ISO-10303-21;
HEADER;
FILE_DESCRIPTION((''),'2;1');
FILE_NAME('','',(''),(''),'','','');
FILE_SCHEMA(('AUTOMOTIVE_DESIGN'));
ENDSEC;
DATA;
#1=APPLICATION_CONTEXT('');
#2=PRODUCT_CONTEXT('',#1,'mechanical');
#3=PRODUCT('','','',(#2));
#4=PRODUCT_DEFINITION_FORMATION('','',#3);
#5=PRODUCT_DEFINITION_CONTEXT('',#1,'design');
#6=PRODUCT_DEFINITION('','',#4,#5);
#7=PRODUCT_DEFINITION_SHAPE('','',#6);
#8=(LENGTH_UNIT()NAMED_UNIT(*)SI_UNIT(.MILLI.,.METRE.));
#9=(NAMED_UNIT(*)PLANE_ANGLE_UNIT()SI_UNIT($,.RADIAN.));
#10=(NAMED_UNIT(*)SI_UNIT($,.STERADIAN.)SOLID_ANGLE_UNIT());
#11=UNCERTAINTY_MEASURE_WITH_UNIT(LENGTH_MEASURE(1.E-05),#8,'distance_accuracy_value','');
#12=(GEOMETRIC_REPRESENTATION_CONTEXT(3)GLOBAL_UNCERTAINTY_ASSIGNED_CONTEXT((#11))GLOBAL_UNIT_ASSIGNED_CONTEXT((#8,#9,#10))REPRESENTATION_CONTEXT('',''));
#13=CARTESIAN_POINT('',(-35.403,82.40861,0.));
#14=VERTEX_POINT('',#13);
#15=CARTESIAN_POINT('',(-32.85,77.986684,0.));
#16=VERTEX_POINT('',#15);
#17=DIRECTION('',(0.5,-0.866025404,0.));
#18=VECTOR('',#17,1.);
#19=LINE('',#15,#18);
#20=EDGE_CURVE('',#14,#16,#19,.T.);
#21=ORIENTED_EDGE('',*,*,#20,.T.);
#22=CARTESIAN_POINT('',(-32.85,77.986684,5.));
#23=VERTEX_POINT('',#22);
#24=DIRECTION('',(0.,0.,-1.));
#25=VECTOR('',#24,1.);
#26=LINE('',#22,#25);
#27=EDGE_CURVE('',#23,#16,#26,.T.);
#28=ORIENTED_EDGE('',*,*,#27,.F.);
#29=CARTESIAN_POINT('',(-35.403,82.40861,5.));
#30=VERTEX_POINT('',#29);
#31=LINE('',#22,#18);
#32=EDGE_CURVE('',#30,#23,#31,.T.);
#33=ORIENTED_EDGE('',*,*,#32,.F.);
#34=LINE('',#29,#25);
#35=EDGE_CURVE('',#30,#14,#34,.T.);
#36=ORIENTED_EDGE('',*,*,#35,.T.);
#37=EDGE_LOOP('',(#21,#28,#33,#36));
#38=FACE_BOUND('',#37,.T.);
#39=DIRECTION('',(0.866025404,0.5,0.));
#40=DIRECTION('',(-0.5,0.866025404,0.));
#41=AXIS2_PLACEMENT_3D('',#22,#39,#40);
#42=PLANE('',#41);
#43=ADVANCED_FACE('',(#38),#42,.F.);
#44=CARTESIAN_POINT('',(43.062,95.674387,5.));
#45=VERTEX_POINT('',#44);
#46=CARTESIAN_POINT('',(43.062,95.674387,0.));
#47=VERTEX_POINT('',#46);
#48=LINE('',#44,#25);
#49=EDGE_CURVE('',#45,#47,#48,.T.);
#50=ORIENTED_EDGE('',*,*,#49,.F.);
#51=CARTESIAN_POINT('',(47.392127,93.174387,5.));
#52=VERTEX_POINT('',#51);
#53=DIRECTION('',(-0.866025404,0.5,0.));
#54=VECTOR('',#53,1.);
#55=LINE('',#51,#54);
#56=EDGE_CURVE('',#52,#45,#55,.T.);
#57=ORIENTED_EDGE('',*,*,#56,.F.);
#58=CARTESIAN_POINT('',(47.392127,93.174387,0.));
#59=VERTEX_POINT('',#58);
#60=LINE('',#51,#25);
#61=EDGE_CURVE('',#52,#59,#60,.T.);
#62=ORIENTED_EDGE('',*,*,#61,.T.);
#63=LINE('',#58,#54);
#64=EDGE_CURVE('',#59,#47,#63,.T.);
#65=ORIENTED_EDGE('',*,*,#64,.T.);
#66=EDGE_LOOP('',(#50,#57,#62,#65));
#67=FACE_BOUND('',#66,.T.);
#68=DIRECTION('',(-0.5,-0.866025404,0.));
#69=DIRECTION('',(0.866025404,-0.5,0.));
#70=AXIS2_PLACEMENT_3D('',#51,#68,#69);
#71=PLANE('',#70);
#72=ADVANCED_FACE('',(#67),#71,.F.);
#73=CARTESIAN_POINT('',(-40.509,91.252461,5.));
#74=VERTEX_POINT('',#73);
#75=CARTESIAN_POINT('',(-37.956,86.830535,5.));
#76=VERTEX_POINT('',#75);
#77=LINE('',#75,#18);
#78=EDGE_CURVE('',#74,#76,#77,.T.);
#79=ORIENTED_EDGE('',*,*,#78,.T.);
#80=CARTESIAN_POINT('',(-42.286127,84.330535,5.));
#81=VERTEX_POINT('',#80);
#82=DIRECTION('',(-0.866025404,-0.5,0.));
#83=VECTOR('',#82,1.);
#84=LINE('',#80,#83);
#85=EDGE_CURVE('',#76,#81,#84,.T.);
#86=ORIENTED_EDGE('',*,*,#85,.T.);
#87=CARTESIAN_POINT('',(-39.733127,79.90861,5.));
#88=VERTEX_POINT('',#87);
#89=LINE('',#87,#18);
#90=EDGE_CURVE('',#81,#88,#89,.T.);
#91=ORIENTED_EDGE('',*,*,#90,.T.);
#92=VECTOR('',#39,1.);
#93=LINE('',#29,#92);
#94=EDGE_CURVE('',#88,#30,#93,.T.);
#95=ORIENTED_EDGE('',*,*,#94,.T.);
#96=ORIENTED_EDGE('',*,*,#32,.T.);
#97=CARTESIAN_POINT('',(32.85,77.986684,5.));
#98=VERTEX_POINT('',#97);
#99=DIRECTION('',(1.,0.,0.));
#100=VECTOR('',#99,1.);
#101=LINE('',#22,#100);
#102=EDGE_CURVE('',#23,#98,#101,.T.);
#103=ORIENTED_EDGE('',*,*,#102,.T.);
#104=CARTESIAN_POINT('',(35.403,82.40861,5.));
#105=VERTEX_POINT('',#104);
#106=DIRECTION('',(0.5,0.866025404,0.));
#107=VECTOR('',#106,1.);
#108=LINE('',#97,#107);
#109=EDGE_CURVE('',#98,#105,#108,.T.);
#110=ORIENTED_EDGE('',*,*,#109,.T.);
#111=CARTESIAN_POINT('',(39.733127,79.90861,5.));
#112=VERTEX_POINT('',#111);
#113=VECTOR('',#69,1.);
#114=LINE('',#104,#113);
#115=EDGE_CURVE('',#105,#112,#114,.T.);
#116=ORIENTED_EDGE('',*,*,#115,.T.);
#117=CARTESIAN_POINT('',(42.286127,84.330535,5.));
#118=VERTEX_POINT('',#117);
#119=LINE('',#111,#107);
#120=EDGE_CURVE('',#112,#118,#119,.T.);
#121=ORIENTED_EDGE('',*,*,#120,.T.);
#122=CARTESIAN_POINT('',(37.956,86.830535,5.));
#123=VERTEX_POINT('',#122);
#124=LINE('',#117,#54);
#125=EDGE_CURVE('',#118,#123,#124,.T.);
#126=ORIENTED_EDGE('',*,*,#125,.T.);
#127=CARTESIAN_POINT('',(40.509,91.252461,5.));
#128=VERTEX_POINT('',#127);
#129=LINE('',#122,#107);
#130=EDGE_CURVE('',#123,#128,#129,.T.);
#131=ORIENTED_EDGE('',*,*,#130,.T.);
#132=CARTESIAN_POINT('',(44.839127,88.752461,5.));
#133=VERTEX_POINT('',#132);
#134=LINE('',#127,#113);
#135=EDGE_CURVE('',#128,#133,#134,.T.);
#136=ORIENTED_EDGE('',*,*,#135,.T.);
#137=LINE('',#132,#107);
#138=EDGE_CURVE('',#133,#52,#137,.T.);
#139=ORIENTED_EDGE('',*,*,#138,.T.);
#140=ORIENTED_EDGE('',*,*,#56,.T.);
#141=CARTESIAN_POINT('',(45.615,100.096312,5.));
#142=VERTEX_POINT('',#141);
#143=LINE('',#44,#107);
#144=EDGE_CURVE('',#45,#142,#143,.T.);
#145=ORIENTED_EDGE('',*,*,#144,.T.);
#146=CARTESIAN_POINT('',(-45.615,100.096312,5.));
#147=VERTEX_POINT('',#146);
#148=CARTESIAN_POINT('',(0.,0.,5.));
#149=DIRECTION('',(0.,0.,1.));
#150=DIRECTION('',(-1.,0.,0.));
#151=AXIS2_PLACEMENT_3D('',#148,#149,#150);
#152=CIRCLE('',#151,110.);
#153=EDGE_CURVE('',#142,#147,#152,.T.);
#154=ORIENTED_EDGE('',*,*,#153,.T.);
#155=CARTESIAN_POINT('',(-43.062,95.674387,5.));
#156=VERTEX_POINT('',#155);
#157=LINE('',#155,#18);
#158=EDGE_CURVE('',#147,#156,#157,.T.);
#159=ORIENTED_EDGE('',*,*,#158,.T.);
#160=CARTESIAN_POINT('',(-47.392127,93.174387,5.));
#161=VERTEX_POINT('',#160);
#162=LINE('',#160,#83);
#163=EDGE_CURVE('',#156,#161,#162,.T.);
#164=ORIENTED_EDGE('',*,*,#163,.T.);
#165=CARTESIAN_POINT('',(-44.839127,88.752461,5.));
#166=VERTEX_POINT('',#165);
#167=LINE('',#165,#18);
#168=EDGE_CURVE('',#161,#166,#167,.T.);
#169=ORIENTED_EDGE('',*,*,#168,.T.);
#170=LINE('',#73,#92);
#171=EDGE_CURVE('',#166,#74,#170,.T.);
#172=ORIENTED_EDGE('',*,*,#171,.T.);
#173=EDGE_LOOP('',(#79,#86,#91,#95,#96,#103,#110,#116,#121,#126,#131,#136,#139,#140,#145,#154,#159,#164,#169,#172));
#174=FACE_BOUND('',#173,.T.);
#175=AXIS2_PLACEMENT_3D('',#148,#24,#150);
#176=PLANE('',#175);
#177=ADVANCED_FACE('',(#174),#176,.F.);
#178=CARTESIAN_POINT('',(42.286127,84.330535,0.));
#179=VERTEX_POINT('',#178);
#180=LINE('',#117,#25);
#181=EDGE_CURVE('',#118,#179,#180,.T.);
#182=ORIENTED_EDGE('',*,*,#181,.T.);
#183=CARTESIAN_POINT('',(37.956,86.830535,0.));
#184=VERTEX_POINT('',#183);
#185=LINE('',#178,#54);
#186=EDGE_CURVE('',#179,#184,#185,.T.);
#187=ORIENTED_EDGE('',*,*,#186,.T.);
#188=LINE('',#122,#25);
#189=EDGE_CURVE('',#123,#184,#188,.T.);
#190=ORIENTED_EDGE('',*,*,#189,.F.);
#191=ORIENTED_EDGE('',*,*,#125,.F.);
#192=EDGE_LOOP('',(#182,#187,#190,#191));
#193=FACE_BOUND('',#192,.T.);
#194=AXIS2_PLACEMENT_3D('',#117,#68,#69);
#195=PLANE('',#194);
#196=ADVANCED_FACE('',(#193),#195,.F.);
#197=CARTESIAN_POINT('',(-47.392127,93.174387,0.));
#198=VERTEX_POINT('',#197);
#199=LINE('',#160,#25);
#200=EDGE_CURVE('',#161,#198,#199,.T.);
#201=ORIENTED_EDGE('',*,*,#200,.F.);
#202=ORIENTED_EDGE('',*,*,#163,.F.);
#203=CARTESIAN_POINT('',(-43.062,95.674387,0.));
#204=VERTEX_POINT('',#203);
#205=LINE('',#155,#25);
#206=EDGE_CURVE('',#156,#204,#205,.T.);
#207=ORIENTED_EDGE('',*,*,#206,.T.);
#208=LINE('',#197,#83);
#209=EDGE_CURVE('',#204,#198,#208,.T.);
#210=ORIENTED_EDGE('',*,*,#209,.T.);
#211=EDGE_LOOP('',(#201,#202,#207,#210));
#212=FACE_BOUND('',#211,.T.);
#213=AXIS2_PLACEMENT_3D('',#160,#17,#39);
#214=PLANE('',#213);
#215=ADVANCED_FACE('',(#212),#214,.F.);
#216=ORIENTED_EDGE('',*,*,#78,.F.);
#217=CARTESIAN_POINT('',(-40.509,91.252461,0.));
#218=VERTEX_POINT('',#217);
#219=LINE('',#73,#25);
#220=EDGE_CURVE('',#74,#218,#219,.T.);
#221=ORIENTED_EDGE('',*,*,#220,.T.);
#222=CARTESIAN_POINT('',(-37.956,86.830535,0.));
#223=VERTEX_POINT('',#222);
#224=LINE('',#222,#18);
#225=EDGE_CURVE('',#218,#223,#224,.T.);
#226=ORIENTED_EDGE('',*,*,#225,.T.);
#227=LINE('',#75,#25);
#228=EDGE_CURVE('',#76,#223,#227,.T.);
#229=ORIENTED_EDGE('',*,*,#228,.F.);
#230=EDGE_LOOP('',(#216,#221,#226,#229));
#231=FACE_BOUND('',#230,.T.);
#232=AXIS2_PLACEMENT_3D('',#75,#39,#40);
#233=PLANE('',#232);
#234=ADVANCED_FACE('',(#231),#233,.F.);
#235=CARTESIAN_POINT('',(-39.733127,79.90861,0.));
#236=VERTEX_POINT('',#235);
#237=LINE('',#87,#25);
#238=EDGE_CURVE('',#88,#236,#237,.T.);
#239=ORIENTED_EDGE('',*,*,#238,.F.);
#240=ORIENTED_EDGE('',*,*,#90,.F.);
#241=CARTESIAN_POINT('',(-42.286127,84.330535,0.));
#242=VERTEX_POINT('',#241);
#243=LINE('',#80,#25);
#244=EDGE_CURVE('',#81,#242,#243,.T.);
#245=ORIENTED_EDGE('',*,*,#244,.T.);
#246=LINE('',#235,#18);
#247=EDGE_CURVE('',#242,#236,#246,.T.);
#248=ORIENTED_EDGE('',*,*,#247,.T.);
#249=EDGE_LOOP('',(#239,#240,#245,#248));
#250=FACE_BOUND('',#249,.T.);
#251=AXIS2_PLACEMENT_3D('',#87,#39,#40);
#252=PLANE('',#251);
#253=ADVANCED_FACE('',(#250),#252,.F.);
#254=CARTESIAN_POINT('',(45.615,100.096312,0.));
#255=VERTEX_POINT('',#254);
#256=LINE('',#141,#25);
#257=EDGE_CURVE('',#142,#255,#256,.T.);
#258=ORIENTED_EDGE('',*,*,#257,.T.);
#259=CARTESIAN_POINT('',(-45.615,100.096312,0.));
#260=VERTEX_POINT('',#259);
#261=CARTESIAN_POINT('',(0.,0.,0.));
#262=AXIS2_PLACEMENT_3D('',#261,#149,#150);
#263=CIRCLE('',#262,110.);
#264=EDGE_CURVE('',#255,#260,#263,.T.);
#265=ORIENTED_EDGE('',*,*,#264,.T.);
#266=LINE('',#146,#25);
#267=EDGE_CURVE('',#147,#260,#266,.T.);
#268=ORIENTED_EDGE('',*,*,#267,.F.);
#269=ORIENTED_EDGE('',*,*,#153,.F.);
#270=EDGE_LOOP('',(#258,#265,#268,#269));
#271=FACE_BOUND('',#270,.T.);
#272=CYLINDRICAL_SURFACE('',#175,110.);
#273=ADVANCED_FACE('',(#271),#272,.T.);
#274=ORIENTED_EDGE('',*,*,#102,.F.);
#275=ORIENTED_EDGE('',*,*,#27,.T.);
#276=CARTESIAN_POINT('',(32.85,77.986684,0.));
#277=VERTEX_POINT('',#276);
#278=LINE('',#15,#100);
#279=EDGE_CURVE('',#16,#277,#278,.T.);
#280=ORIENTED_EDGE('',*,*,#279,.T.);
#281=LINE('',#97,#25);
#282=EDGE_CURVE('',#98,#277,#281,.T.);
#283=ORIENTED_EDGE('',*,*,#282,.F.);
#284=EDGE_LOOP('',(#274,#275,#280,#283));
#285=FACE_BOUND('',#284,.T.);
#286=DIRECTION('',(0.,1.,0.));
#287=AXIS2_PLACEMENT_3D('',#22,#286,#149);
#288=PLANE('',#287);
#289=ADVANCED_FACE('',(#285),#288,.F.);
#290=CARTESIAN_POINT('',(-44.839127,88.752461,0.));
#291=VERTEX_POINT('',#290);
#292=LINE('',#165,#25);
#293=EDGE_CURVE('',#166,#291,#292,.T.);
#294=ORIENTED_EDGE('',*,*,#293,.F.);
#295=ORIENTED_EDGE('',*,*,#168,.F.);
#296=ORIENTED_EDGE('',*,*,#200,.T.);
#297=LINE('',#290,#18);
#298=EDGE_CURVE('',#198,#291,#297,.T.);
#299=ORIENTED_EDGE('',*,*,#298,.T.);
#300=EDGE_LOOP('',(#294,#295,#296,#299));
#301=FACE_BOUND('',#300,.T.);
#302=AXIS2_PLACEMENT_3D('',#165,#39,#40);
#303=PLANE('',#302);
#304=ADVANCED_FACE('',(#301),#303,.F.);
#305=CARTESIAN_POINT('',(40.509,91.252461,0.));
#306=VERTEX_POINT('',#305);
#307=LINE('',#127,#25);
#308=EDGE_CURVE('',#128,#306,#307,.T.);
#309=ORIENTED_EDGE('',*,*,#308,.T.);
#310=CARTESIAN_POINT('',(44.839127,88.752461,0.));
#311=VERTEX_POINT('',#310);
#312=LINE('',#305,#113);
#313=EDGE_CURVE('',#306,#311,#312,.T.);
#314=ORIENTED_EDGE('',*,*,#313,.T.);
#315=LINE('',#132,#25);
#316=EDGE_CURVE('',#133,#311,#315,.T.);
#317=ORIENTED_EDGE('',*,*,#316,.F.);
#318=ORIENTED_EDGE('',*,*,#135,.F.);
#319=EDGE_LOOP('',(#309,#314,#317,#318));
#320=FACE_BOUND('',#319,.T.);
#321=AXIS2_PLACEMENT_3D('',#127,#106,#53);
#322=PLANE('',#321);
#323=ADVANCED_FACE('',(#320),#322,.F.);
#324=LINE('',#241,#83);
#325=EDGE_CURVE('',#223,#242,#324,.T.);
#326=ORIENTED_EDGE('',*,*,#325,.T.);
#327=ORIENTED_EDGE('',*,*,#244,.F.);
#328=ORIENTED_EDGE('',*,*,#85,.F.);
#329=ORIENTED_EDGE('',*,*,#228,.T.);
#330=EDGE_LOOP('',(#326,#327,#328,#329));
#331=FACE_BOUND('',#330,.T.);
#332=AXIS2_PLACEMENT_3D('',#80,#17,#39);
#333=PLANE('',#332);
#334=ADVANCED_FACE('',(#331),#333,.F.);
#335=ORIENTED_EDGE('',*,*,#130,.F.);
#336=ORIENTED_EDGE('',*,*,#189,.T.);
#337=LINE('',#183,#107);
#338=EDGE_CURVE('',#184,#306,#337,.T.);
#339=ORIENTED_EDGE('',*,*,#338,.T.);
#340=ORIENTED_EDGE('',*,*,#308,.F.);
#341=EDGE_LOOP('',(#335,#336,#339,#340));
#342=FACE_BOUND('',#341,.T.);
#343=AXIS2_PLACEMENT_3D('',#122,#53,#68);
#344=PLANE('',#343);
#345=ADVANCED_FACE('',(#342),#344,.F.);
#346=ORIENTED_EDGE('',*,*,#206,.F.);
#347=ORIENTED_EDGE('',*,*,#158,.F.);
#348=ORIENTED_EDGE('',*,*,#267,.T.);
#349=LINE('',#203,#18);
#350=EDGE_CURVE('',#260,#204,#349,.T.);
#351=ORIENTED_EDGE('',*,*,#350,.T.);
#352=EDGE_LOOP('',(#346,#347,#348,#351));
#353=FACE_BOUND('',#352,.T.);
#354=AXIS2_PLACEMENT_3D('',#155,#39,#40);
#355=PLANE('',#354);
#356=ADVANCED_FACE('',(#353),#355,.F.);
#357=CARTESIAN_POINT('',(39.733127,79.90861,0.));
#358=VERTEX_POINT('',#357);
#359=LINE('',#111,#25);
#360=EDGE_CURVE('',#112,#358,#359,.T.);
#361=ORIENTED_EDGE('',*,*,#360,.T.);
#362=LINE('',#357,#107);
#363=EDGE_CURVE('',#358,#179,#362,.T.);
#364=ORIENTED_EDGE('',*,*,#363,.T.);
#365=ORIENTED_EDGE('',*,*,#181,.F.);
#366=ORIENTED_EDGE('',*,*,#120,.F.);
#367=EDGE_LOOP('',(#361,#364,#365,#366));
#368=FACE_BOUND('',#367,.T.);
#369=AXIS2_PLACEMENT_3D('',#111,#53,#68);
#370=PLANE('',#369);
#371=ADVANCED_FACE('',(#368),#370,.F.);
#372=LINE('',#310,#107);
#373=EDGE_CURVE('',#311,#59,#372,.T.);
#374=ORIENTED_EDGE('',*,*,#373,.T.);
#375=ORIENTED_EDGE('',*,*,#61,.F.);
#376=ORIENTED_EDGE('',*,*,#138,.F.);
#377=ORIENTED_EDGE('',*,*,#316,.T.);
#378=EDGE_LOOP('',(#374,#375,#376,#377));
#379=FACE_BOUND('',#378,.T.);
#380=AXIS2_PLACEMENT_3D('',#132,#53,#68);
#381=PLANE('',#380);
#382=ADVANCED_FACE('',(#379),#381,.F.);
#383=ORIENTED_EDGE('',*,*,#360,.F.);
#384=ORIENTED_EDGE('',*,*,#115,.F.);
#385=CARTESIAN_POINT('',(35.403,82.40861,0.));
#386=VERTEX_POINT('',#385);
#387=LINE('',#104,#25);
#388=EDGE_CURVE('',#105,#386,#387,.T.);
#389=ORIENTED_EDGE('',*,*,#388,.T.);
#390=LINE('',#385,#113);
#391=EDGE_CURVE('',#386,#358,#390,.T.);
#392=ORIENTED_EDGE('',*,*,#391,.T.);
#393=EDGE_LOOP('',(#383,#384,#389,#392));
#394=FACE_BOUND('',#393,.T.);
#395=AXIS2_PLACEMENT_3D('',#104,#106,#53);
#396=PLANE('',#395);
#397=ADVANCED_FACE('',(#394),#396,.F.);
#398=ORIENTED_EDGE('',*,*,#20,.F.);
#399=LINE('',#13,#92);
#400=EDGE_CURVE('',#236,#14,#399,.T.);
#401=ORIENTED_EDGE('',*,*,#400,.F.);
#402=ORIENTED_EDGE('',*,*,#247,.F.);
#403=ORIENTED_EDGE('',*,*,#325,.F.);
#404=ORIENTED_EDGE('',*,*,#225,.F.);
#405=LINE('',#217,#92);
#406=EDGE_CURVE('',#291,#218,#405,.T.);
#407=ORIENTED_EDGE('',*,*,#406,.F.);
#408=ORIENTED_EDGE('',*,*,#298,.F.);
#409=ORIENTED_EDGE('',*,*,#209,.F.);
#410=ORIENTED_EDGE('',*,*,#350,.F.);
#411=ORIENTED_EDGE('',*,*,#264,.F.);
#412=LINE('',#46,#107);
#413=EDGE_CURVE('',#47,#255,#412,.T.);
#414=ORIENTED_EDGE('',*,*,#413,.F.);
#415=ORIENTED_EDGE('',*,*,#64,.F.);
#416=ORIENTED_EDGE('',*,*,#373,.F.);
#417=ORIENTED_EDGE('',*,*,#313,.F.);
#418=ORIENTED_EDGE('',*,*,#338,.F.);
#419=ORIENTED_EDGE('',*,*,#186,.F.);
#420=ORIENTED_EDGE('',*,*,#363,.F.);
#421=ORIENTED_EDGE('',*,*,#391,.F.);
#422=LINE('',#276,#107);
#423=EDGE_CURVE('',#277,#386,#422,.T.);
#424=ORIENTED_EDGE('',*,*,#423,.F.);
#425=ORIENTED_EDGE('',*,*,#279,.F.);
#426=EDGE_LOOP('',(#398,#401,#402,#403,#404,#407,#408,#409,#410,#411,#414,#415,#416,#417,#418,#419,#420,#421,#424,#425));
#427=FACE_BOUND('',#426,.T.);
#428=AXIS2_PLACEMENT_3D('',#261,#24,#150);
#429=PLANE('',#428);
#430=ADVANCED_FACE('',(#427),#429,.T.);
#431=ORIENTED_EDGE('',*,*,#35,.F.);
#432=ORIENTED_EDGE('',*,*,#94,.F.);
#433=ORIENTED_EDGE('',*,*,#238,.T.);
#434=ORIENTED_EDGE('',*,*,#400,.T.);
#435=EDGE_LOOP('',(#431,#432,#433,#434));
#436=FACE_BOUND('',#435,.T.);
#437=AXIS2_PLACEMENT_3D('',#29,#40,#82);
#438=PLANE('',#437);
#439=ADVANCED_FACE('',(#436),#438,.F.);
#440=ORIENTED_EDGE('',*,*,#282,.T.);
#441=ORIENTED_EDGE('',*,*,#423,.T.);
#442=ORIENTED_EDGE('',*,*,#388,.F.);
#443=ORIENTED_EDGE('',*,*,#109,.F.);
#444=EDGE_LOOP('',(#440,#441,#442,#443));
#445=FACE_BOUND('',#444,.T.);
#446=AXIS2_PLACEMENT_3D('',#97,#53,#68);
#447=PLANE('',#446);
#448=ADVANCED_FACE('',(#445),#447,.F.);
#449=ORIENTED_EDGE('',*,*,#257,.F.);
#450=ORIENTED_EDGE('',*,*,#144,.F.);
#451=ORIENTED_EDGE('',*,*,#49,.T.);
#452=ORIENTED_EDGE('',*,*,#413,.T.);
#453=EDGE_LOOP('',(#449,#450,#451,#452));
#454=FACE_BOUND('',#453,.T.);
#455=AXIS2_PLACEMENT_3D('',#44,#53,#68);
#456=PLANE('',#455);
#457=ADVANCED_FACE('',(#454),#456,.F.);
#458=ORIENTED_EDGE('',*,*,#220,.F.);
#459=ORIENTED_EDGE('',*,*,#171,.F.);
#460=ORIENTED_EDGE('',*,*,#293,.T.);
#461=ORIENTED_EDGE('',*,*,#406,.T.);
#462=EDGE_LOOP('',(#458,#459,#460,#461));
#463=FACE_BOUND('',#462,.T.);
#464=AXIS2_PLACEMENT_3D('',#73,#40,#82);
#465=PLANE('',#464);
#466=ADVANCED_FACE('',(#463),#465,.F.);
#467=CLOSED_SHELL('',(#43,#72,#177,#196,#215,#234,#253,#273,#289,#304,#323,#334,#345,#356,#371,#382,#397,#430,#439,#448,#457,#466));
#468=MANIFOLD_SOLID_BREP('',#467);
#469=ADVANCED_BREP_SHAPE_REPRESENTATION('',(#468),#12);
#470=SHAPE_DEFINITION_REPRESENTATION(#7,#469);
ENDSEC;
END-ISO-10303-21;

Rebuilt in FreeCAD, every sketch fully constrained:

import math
import FreeCAD as App
import Part
import Sketcher
from FreeCAD import Vector
Q = App.Units.Quantity

doc = App.newDocument("Part")
params = doc.addObject("Spreadsheet::Sheet", "Params")
for row, (alias, value) in enumerate([
    ("sketch1_radius", "110 mm"),
    ("sketch1_length", "5 mm"),
    ("sketch1_width", "65.7 mm"),
    ("pad1_length", "5 mm"),
], start=1):
    params.set(f"A{row}", alias)
    params.set(f"B{row}", "=" + value)
    params.setAlias(f"B{row}", alias)

body = doc.addObject("PartDesign::Body", "Body")

# Sketch on XY plane
sketch1 = doc.addObject("Sketcher::SketchObject", "Sketch")
body.addObject(sketch1)
sketch1.AttachmentSupport = (doc.XY_Plane, [""])
sketch1.MapMode = "FlatFace"
sketch1.addGeometry([
    Part.LineSegment(Vector(-32.85, 77.986684, 0), Vector(32.85, 77.986684, 0)),  # 0
    Part.LineSegment(Vector(32.85, 77.986684, 0), Vector(35.403, 82.40861, 0)),  # 1
    Part.LineSegment(Vector(35.403, 82.40861, 0), Vector(39.733127, 79.90861, 0)),  # 2
    Part.LineSegment(Vector(39.733127, 79.90861, 0), Vector(42.286127, 84.330535, 0)),  # 3
    Part.LineSegment(Vector(42.286127, 84.330535, 0), Vector(37.956, 86.830535, 0)),  # 4
    Part.LineSegment(Vector(37.956, 86.830535, 0), Vector(40.509, 91.252461, 0)),  # 5
    Part.LineSegment(Vector(40.509, 91.252461, 0), Vector(44.839127, 88.752461, 0)),  # 6
    Part.LineSegment(Vector(44.839127, 88.752461, 0), Vector(47.392127, 93.174387, 0)),  # 7
    Part.LineSegment(Vector(47.392127, 93.174387, 0), Vector(43.062, 95.674387, 0)),  # 8
    Part.LineSegment(Vector(43.062, 95.674387, 0), Vector(45.615, 100.096312, 0)),  # 9
    Part.ArcOfCircle(Part.Circle(Vector(0, 0, 0), Vector(0, 0, 1), 110), math.radians(65.500719), math.radians(114.499281)),  # 10
    Part.LineSegment(Vector(-45.615, 100.096312, 0), Vector(-43.062, 95.674387, 0)),  # 11
    Part.LineSegment(Vector(-43.062, 95.674387, 0), Vector(-47.392127, 93.174387, 0)),  # 12
    Part.LineSegment(Vector(-47.392127, 93.174387, 0), Vector(-44.839127, 88.752461, 0)),  # 13
    Part.LineSegment(Vector(-44.839127, 88.752461, 0), Vector(-40.509, 91.252461, 0)),  # 14
    Part.LineSegment(Vector(-40.509, 91.252461, 0), Vector(-37.956, 86.830535, 0)),  # 15
    Part.LineSegment(Vector(-37.956, 86.830535, 0), Vector(-42.286127, 84.330535, 0)),  # 16
    Part.LineSegment(Vector(-42.286127, 84.330535, 0), Vector(-39.733127, 79.90861, 0)),  # 17
    Part.LineSegment(Vector(-39.733127, 79.90861, 0), Vector(-35.403, 82.40861, 0)),  # 18
    Part.LineSegment(Vector(-35.403, 82.40861, 0), Vector(-32.85, 77.986684, 0)),  # 19
], False)
sketch1.addConstraint([
    Sketcher.Constraint("Coincident", 0, 2, 1, 1),
    Sketcher.Constraint("Coincident", 1, 2, 2, 1),
    Sketcher.Constraint("Coincident", 2, 2, 3, 1),
    Sketcher.Constraint("Coincident", 3, 2, 4, 1),
    Sketcher.Constraint("Coincident", 4, 2, 5, 1),
    Sketcher.Constraint("Coincident", 5, 2, 6, 1),
    Sketcher.Constraint("Coincident", 6, 2, 7, 1),
    Sketcher.Constraint("Coincident", 7, 2, 8, 1),
    Sketcher.Constraint("Coincident", 8, 2, 9, 1),
    Sketcher.Constraint("Coincident", 9, 2, 10, 1),
    Sketcher.Constraint("Coincident", 10, 2, 11, 1),
    Sketcher.Constraint("Coincident", 11, 2, 12, 1),
    Sketcher.Constraint("Coincident", 12, 2, 13, 1),
    Sketcher.Constraint("Coincident", 13, 2, 14, 1),
    Sketcher.Constraint("Coincident", 14, 2, 15, 1),
    Sketcher.Constraint("Coincident", 15, 2, 16, 1),
    Sketcher.Constraint("Coincident", 16, 2, 17, 1),
    Sketcher.Constraint("Coincident", 17, 2, 18, 1),
    Sketcher.Constraint("Coincident", 18, 2, 19, 1),
    Sketcher.Constraint("Coincident", 19, 2, 0, 1),
    Sketcher.Constraint("Horizontal", 0),
    Sketcher.Constraint("Coincident", 10, 3, -1, 1),
    Sketcher.Constraint("Symmetric", 8, 2, 11, 2, -2),
    Sketcher.Constraint("Symmetric", 7, 2, 12, 2, -2),
    Sketcher.Constraint("Symmetric", 6, 2, 13, 2, -2),
    Sketcher.Constraint("Symmetric", 5, 2, 14, 2, -2),
    Sketcher.Constraint("Symmetric", 4, 2, 15, 2, -2),
    Sketcher.Constraint("Symmetric", 3, 2, 16, 2, -2),
    Sketcher.Constraint("Symmetric", 2, 2, 17, 2, -2),
    Sketcher.Constraint("Symmetric", 1, 2, 18, 2, -2),
    Sketcher.Constraint("Perpendicular", 1, 2),
    Sketcher.Constraint("Perpendicular", 2, 3),
    Sketcher.Constraint("Perpendicular", 3, 4),
    Sketcher.Constraint("Perpendicular", 4, 5),
    Sketcher.Constraint("Perpendicular", 5, 6),
    Sketcher.Constraint("Perpendicular", 6, 7),
    Sketcher.Constraint("Perpendicular", 7, 8),
    Sketcher.Constraint("Perpendicular", 8, 9),
    Sketcher.Constraint("Perpendicular", 11, 12),
    Sketcher.Constraint("Perpendicular", 18, 19),
    Sketcher.Constraint("Equal", 1, 3),
    Sketcher.Constraint("Equal", 2, 4),
    Sketcher.Constraint("Equal", 3, 5),
    Sketcher.Constraint("Equal", 4, 6),
    Sketcher.Constraint("Equal", 5, 7),
    Sketcher.Constraint("Equal", 6, 8),
    Sketcher.Constraint("Equal", 7, 9),
    Sketcher.Constraint("Radius", 10, 110.0),
    Sketcher.Constraint("Angle", 1, Q("60 deg")),
    Sketcher.Constraint("Distance", 2, 5.0),
    Sketcher.Constraint("DistanceX", 0, 1, 0, 2, 65.7),
    Sketcher.Constraint("Distance", 1, 5.106),
])
sketch1.setExpression("Constraints[47]", "Params.sketch1_radius")
sketch1.setExpression("Constraints[49]", "Params.sketch1_length")
sketch1.setExpression("Constraints[50]", "Params.sketch1_width")
pad1 = doc.addObject("PartDesign::Pad", "Pad")
body.addObject(pad1)
pad1.Profile = sketch1
pad1.setExpression("Length", "Params.pad1_length")

doc.recompute()
